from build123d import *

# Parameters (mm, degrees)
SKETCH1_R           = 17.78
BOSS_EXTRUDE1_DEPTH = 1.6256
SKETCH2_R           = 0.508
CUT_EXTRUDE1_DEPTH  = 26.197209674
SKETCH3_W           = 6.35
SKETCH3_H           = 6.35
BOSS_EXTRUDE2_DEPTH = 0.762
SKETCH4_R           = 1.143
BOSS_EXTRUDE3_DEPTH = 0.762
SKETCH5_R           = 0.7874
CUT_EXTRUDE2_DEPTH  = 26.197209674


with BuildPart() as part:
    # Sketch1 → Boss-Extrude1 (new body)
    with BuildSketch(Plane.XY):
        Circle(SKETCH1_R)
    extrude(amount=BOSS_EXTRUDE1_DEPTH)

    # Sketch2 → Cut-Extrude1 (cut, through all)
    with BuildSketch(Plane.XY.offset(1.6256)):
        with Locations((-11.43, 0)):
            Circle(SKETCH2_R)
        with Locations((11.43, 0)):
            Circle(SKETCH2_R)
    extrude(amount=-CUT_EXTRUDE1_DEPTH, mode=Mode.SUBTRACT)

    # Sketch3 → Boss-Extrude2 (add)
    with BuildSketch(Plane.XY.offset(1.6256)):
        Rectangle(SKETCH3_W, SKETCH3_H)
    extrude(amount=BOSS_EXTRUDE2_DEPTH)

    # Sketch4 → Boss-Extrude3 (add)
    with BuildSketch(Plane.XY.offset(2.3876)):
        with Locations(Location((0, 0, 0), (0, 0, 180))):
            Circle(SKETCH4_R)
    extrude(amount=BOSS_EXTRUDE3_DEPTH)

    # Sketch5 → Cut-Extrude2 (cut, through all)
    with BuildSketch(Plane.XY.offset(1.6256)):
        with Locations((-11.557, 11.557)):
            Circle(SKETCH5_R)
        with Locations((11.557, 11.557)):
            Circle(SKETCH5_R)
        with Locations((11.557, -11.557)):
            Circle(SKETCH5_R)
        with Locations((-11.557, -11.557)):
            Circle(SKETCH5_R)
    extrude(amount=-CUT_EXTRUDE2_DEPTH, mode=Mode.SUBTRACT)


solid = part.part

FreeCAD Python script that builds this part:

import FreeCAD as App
import Part
import Sketcher
Q = App.Units.Quantity


def add_polygon(sketch, points):
    """Adds a closed chain of lines whose ends are joined by coincident constraints."""
    first, n = sketch.GeometryCount, len(points)
    for a, b in zip(points, points[1:] + points[:1]):
        sketch.addGeometry(Part.LineSegment(App.Vector(*a, 0), App.Vector(*b, 0)), False)
    for i in range(n):
        sketch.addConstraint(Sketcher.Constraint("Coincident", first + i, 2, first + (i + 1) % n, 1))

doc = App.newDocument("Part")
body = doc.addObject("PartDesign::Body", "Body")

# Sketch on XY plane
sketch1 = body.newObject("Sketcher::SketchObject", "Sketch")
sketch1.AttachmentSupport = (doc.getObject("XY_Plane"), [""])
sketch1.MapMode = "FlatFace"
sketch1.addGeometry(Part.Circle(App.Vector(0, 0, 0), App.Vector(0, 0, 1), 17.78), False)
sketch1.addConstraint([
    Sketcher.Constraint("Coincident", 0, 3, -1, 1),
    Sketcher.Constraint("Diameter", 0, Q("1.4 in")),
])
pad1 = body.newObject("PartDesign::Pad", "Pad")
pad1.Profile = sketch1
pad1.Length = Q("0.064 in")

# Sketch on XY plane
sketch2 = body.newObject("Sketcher::SketchObject", "Sketch001")
sketch2.AttachmentSupport = (doc.getObject("XY_Plane"), [""])
sketch2.MapMode = "FlatFace"
sketch2.AttachmentOffset = App.Placement(App.Vector(0, 0, 0.064 * 25.4), App.Rotation())
sketch2.addGeometry([
    Part.Circle(App.Vector(-11.43, 0, 0), App.Vector(0, 0, 1), 0.508),
    Part.Circle(App.Vector(11.43, 0, 0), App.Vector(0, 0, 1), 0.508),
], False)
sketch2.addConstraint([
    Sketcher.Constraint("Equal", 0, 1),
    Sketcher.Constraint("Symmetric", 0, 3, 1, 3, -1, 1),
    Sketcher.Constraint("PointOnObject", 0, 3, -1),
    Sketcher.Constraint("Diameter", 0, Q("0.04 in")),
    Sketcher.Constraint("DistanceX", 0, 3, 1, 3, Q("0.9 in")),
])
pocket1 = body.newObject("PartDesign::Pocket", "Pocket")
pocket1.Profile = sketch2
pocket1.Type = "ThroughAll"

# Sketch on XY plane
sketch3 = body.newObject("Sketcher::SketchObject", "Sketch002")
sketch3.AttachmentSupport = (doc.getObject("XY_Plane"), [""])
sketch3.MapMode = "FlatFace"
sketch3.AttachmentOffset = App.Placement(App.Vector(0, 0, 0.064 * 25.4), App.Rotation())
add_polygon(sketch3, [(-3.175, 3.175), (-3.175, -3.175), (3.175, -3.175), (3.175, 3.175)])  # lines 0-3
sketch3.addConstraint([
    Sketcher.Constraint("Vertical", 0),
    Sketcher.Constraint("Horizontal", 1),
    Sketcher.Constraint("Vertical", 2),
    Sketcher.Constraint("Horizontal", 3),
    Sketcher.Constraint("Symmetric", 0, 2, 2, 2, -1, 1),
    Sketcher.Constraint("Equal", 3, 0),
    Sketcher.Constraint("DistanceX", 1, 1, 1, 2, Q("0.25 in")),
])
pad2 = body.newObject("PartDesign::Pad", "Pad001")
pad2.Profile = sketch3
pad2.Length = Q("0.03 in")

# Sketch on XY plane
sketch4 = body.newObject("Sketcher::SketchObject", "Sketch003")
sketch4.AttachmentSupport = (doc.getObject("XY_Plane"), [""])
sketch4.MapMode = "FlatFace"
sketch4.AttachmentOffset = App.Placement(App.Vector(0, 0, 0.094 * 25.4), App.Rotation())
sketch4.addGeometry(Part.Circle(App.Vector(0, 0, 0), App.Vector(0, 0, 1), 1.143), False)
sketch4.addConstraint([
    Sketcher.Constraint("Coincident", 0, 3, -1, 1),
    Sketcher.Constraint("Diameter", 0, Q("0.09 in")),
])
pad3 = body.newObject("PartDesign::Pad", "Pad002")
pad3.Profile = sketch4
pad3.Length = Q("0.03 in")

# Sketch on XY plane
sketch5 = body.newObject("Sketcher::SketchObject", "Sketch004")
sketch5.AttachmentSupport = (doc.getObject("XY_Plane"), [""])
sketch5.MapMode = "FlatFace"
sketch5.AttachmentOffset = App.Placement(App.Vector(0, 0, 0.064 * 25.4), App.Rotation())
sketch5.addGeometry([
    Part.Circle(App.Vector(-11.557, 11.557, 0), App.Vector(0, 0, 1), 0.7874),
    Part.Circle(App.Vector(11.557, 11.557, 0), App.Vector(0, 0, 1), 0.7874),
    Part.Circle(App.Vector(11.557, -11.557, 0), App.Vector(0, 0, 1), 0.7874),
    Part.Circle(App.Vector(-11.557, -11.557, 0), App.Vector(0, 0, 1), 0.7874),
], False)
sketch5.addConstraint([
    Sketcher.Constraint("Equal", 0, 1),
    Sketcher.Constraint("Equal", 1, 2),
    Sketcher.Constraint("Equal", 2, 3),
    Sketcher.Constraint("Symmetric", 0, 3, 2, 3, -1, 1),
    Sketcher.Constraint("Symmetric", 1, 3, 3, 3, -1, 1),
    Sketcher.Constraint("Symmetric", 0, 3, 1, 3, -2),
    Sketcher.Constraint("Diameter", 0, Q("0.062 in")),
    Sketcher.Constraint("DistanceX", 0, 3, 1, 3, Q("0.91 in")),
    Sketcher.Constraint("DistanceY", 2, 3, 1, 3, Q("0.91 in")),
])
pocket2 = body.newObject("PartDesign::Pocket", "Pocket001")
pocket2.Profile = sketch5
pocket2.Type = "ThroughAll"

doc.recompute()
